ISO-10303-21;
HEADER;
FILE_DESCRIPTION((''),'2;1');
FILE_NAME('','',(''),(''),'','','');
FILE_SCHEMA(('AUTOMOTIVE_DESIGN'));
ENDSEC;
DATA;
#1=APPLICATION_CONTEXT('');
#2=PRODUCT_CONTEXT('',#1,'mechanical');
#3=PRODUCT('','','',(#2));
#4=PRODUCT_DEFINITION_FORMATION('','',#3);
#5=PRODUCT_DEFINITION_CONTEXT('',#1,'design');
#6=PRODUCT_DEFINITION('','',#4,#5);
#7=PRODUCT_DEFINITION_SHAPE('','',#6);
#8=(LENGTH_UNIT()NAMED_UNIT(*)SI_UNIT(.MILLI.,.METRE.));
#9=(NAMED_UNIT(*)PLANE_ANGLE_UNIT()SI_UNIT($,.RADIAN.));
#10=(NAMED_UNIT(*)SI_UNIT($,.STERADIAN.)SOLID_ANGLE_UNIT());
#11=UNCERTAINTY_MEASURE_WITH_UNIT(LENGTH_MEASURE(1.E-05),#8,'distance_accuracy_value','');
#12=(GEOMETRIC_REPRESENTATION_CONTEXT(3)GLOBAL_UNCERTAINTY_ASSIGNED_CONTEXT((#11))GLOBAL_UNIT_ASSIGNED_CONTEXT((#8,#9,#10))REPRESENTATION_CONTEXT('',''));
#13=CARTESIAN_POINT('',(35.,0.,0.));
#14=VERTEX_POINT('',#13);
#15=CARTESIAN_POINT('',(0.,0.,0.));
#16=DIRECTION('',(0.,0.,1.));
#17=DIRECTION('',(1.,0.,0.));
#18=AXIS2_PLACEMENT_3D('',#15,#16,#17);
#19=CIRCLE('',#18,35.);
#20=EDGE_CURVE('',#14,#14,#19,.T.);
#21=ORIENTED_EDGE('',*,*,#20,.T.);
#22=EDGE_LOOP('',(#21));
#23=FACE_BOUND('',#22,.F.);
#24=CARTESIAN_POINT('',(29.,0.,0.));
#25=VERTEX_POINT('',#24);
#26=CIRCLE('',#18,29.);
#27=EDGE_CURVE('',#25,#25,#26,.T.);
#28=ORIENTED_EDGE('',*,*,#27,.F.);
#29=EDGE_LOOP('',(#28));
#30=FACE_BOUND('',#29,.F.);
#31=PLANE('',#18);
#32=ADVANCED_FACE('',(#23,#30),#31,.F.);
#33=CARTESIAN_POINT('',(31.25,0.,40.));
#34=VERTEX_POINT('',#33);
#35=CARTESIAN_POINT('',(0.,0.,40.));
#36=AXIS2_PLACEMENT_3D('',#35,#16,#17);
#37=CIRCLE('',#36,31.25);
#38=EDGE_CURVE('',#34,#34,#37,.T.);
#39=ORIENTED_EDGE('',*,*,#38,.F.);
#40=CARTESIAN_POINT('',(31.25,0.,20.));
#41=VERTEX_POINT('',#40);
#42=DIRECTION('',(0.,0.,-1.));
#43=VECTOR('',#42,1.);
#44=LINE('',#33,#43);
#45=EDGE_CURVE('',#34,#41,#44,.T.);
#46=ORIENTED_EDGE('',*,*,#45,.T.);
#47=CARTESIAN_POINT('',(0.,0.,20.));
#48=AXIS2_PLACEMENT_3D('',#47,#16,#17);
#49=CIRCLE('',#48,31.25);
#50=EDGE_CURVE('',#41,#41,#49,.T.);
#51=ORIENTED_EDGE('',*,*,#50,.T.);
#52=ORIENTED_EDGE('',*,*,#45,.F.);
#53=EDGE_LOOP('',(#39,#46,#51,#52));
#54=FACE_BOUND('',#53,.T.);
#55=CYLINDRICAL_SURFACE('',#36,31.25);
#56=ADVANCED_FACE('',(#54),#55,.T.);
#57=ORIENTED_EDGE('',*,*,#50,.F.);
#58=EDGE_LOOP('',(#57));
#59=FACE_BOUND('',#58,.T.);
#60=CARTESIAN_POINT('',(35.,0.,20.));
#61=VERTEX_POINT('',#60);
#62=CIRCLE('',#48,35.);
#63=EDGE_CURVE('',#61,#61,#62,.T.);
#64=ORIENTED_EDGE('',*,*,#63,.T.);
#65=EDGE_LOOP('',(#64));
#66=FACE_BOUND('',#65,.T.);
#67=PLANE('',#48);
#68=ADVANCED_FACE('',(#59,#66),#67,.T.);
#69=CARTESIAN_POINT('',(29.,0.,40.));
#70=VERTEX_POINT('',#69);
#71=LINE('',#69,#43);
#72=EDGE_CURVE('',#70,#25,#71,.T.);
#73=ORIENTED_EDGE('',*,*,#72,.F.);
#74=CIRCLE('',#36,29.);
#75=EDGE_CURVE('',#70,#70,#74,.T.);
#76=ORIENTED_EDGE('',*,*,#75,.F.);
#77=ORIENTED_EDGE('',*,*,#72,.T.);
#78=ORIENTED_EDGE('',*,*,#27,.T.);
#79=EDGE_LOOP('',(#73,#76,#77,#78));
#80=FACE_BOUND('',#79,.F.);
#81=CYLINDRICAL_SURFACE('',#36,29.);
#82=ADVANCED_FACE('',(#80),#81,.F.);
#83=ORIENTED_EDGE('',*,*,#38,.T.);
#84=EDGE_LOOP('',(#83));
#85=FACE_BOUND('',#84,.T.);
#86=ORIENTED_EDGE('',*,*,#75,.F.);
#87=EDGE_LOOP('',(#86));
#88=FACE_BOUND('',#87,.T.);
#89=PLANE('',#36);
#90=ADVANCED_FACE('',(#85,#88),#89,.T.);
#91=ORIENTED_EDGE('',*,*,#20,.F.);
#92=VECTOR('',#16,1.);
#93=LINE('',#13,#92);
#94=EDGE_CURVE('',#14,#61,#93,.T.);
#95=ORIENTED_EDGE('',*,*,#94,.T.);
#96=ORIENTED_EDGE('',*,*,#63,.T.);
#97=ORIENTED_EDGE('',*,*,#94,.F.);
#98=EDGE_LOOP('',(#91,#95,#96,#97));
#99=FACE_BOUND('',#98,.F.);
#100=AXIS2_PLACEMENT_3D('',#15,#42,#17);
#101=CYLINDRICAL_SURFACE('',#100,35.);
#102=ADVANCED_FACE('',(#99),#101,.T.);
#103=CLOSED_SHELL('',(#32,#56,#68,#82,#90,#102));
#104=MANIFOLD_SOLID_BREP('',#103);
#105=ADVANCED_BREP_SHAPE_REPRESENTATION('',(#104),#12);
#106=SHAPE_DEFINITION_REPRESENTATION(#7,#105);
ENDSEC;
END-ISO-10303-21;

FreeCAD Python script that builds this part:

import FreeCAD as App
import Part
import Sketcher
Q = App.Units.Quantity

doc = App.newDocument("Part")
body = doc.addObject("PartDesign::Body", "Body")

# Sketch on XY plane
sketch1 = doc.addObject("Sketcher::SketchObject", "Sketch")
body.addObject(sketch1)
sketch1.AttachmentSupport = (doc.XY_Plane, [""])
sketch1.MapMode = "FlatFace"
sketch1.addGeometry(Part.Circle(App.Vector(0, 0, 0), App.Vector(0, 0, 1), 35), False)
sketch1.addConstraint([
    Sketcher.Constraint("Coincident", 0, 3, -1, 1),
    Sketcher.Constraint("Diameter", 0, Q("70 mm")),
])
pad1 = doc.addObject("PartDesign::Pad", "Pad")
body.addObject(pad1)
pad1.Profile = sketch1
pad1.Length = 40

# Sketch on XY plane
sketch2 = doc.addObject("Sketcher::SketchObject", "Sketch001")
body.addObject(sketch2)
sketch2.AttachmentSupport = (doc.XY_Plane, [""])
sketch2.MapMode = "FlatFace"
sketch2.AttachmentOffset = App.Placement(App.Vector(0, 0, 40), App.Rotation())
sketch2.addGeometry([
    Part.Circle(App.Vector(0, 0, 0), App.Vector(0, 0, 1), 35),
    Part.Circle(App.Vector(0, 0, 0), App.Vector(0, 0, 1), 31),
], False)
sketch2.addConstraint([
    Sketcher.Constraint("Coincident", 0, 3, -1, 1),
    Sketcher.Constraint("Coincident", 1, 3, -1, 1),
    Sketcher.Constraint("Diameter", 0, Q("70 mm")),
    Sketcher.Constraint("Diameter", 1, Q("62.5 mm")),
])
pocket1 = doc.addObject("PartDesign::Pocket", "Pocket")
body.addObject(pocket1)
pocket1.Profile = sketch2
pocket1.Length = 20

# Sketch on XY plane
sketch3 = doc.addObject("Sketcher::SketchObject", "Sketch002")
body.addObject(sketch3)
sketch3.AttachmentSupport = (doc.XY_Plane, [""])
sketch3.MapMode = "FlatFace"
sketch3.AttachmentOffset = App.Placement(App.Vector(0, 0, 40), App.Rotation())
sketch3.addGeometry(Part.Circle(App.Vector(0, 0, 0), App.Vector(0, 0, 1), 29), False)
sketch3.addConstraint([
    Sketcher.Constraint("Coincident", 0, 3, -1, 1),
    Sketcher.Constraint("Diameter", 0, Q("58 mm")),
])
pocket2 = doc.addObject("PartDesign::Pocket", "Pocket001")
body.addObject(pocket2)
pocket2.Profile = sketch3
pocket2.Length = 40

doc.recompute()
